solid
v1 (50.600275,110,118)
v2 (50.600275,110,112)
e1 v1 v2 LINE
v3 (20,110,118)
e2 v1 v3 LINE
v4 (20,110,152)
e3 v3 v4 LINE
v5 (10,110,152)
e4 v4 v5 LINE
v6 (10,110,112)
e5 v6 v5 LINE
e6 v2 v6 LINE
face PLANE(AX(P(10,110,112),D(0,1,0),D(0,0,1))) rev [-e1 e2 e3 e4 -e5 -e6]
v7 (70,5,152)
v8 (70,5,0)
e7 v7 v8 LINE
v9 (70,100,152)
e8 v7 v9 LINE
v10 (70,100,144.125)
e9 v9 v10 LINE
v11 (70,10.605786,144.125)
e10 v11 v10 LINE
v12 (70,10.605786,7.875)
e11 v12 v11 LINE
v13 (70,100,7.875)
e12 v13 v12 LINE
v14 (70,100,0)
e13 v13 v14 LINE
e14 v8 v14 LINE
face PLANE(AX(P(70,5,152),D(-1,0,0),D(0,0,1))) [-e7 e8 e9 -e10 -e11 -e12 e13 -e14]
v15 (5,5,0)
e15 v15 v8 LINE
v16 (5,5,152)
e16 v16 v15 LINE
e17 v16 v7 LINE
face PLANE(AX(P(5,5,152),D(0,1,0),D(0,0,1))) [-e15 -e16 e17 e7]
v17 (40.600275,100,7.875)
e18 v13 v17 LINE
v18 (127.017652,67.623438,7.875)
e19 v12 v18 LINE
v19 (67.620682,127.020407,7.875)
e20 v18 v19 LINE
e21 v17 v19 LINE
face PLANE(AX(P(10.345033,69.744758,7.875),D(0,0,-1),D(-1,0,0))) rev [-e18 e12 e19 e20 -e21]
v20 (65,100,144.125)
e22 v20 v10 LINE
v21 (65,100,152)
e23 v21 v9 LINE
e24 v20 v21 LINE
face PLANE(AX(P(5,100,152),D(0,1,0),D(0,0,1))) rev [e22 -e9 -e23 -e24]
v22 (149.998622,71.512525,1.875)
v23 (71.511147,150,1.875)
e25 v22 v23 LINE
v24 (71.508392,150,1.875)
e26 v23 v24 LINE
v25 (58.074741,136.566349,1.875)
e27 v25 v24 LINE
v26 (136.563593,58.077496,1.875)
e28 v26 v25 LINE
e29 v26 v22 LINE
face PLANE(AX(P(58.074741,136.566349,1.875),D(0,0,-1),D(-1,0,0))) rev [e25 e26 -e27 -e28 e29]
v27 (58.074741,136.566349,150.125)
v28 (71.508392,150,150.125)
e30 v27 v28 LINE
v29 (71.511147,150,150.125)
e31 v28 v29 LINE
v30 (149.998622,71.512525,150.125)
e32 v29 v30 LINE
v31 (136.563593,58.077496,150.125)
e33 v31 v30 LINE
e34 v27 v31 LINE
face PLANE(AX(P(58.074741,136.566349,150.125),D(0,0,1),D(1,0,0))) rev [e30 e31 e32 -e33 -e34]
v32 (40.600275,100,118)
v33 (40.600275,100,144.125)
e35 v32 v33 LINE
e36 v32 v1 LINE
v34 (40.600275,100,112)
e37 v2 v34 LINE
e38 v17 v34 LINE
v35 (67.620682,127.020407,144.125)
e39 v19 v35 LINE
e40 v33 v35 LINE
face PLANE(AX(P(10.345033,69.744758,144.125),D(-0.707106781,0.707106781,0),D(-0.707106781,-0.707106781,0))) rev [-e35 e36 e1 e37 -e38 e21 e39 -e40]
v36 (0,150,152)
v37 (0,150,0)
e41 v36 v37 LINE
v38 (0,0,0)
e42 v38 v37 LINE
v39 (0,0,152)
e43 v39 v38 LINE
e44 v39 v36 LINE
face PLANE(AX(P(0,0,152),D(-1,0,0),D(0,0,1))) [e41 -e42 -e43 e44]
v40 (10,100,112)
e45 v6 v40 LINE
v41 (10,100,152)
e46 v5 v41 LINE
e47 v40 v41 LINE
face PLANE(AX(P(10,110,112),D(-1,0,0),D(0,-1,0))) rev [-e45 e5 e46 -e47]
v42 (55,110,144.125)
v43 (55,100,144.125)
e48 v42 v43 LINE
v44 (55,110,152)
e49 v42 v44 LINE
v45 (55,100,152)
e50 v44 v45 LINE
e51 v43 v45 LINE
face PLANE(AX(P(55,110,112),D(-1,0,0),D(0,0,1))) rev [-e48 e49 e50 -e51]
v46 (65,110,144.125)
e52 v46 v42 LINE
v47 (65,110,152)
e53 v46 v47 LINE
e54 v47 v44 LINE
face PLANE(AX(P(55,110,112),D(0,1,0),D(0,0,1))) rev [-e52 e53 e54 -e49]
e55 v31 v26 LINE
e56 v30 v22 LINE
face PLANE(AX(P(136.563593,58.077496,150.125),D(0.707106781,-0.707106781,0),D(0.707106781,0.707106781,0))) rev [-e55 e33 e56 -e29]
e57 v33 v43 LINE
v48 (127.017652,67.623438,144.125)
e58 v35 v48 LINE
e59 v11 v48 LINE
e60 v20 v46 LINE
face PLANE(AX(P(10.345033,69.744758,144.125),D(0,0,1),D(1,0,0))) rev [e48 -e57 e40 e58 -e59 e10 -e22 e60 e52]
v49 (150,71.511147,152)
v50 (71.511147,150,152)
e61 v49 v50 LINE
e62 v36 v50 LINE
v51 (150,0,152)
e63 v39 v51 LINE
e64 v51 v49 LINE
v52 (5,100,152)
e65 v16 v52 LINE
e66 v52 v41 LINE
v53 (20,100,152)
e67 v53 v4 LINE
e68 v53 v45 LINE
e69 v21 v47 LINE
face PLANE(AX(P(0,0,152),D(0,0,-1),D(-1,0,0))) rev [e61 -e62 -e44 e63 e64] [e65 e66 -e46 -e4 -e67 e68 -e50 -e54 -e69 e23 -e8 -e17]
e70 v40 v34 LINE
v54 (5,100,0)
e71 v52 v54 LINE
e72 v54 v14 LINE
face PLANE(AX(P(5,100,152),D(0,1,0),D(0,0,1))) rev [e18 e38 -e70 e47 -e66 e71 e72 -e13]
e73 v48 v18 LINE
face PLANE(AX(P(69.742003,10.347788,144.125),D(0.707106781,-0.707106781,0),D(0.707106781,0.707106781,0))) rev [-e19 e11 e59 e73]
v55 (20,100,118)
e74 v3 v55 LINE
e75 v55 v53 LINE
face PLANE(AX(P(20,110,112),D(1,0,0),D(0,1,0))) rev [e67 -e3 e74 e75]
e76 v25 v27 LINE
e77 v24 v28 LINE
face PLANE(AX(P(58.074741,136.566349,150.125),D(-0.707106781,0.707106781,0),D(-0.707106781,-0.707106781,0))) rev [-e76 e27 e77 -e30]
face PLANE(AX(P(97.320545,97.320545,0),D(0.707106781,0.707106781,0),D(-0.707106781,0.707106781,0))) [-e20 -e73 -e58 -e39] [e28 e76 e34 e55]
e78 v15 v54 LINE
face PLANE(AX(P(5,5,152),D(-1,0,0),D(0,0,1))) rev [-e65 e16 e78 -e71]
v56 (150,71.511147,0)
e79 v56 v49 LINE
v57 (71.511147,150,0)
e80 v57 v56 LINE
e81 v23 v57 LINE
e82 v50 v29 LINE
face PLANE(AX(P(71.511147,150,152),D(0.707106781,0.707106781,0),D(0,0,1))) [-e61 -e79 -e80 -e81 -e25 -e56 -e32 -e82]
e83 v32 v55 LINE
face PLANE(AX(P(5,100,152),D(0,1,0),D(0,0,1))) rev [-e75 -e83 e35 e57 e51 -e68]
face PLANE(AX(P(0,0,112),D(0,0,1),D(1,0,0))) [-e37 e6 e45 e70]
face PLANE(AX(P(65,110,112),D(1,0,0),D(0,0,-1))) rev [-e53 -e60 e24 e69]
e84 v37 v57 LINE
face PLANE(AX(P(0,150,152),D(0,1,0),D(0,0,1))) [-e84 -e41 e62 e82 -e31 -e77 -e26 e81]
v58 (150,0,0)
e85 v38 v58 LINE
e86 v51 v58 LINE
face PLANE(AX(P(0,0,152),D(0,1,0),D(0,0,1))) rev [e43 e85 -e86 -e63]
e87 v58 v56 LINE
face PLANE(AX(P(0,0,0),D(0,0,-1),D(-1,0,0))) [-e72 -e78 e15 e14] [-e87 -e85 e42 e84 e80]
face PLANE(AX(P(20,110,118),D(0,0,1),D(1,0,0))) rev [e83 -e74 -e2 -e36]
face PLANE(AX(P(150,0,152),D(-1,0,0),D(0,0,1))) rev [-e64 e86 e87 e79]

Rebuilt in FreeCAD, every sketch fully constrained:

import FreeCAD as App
import Part
import Sketcher
Q = App.Units.Quantity


def edges_at(feature, points):
    """Names of the edges that pass closest to the given points."""
    edges = feature.Shape.Edges
    near = lambda p: min(range(len(edges)), key=lambda i: edges[i].distToShape(Part.Vertex(*p))[0])
    return sorted({f"Edge{near(p) + 1}" for p in points})


def add_polygon(sketch, points):
    """Adds a closed chain of lines whose ends are joined by coincident constraints."""
    first, n = sketch.GeometryCount, len(points)
    for a, b in zip(points, points[1:] + points[:1]):
        sketch.addGeometry(Part.LineSegment(App.Vector(*a, 0), App.Vector(*b, 0)), False)
    for i in range(n):
        sketch.addConstraint(Sketcher.Constraint("Coincident", first + i, 2, first + (i + 1) % n, 1))

doc = App.newDocument("Part")
body = doc.addObject("PartDesign::Body", "Body")

# Sketch on XY plane
sketch1 = body.newObject("Sketcher::SketchObject", "Sketch")
sketch1.AttachmentSupport = (doc.getObject("XY_Plane"), [""])
sketch1.MapMode = "FlatFace"
add_polygon(sketch1, [(0, 150), (0, 0), (150, 0), (150, 150)])  # lines 0-3
add_polygon(sketch1, [(70, 5), (5, 5), (5, 100), (70, 100)])  # lines 4-7
sketch1.addConstraint(Sketcher.Constraint("Vertical", 0))
sketch1.addConstraint(Sketcher.Constraint("Horizontal", 1))
sketch1.addConstraint(Sketcher.Constraint("Vertical", 2))
sketch1.addConstraint(Sketcher.Constraint("Horizontal", 3))
sketch1.addConstraint(Sketcher.Constraint("Horizontal", 4))
sketch1.addConstraint(Sketcher.Constraint("Vertical", 5))
sketch1.addConstraint(Sketcher.Constraint("Horizontal", 6))
sketch1.addConstraint(Sketcher.Constraint("Vertical", 7))
sketch1.addConstraint(Sketcher.Constraint("Coincident", 0, 2, -1, 1))
sketch1.addConstraint(Sketcher.Constraint("Equal", 3, 0))
sketch1.addConstraint(Sketcher.Constraint("DistanceX", 1, 1, 1, 2, Q("150 mm")))
sketch1.addConstraint(Sketcher.Constraint("DistanceX", 4, 2, 4, 1, Q("65 mm")))
sketch1.addConstraint(Sketcher.Constraint("DistanceY", 5, 1, 5, 2, Q("95 mm")))
sketch1.addConstraint(Sketcher.Constraint("DistanceX", -1, 1, 4, 2, Q("5 mm")))
sketch1.addConstraint(Sketcher.Constraint("DistanceY", -1, 1, 4, 2, Q("5 mm")))
pad1 = body.newObject("PartDesign::Pad", "Pad")
pad1.Profile = sketch1
pad1.Length = 152
doc.recompute()

chamfer = body.newObject("PartDesign::Chamfer", "Chamfer")
chamfer.Base = (pad1, edges_at(pad1, [(150, 150, 76)]))
chamfer.Size = 78.488853

# Sketch on an angled plane
sketch2 = body.newObject("Sketcher::SketchObject", "Sketch001")
sketch2.Placement = App.Placement(App.Vector(110.755574, 110.755574, 0), App.Rotation(App.Vector(0, 0, -1), App.Vector(-0.707106781, 0.707106781, 0), App.Vector(0.707106781, 0.707106781, 0), "ZXY"))
add_polygon(sketch2, [(-150, 56), (-150, -55), (-2, -55), (-2, 56)])  # lines 0-3
sketch2.addConstraint(Sketcher.Constraint("Vertical", 0))
sketch2.addConstraint(Sketcher.Constraint("Horizontal", 1))
sketch2.addConstraint(Sketcher.Constraint("Vertical", 2))
sketch2.addConstraint(Sketcher.Constraint("Horizontal", 3))
sketch2.addConstraint(Sketcher.Constraint("DistanceY", 0, 2, 0, 1, Q("111 mm")))
sketch2.addConstraint(Sketcher.Constraint("DistanceX", 1, 1, 1, 2, Q("148.25 mm")))
sketch2.addConstraint(Sketcher.Constraint("DistanceX", 0, 2, -1, 1, Q("150.125 mm")))
sketch2.addConstraint(Sketcher.Constraint("DistanceY", 0, 2, -1, 1, Q("55.498052 mm")))
pocket1 = body.newObject("PartDesign::Pocket", "Pocket")
pocket1.Profile = sketch2
pocket1.Length = 19

# Sketch on an angled plane
sketch3 = body.newObject("Sketcher::SketchObject", "Sketch002")
sketch3.Placement = App.Placement(App.Vector(97.320545, 97.320545, 0), App.Rotation(App.Vector(0, 0, -1), App.Vector(-0.707106781, 0.707106781, 0), App.Vector(0.707106781, 0.707106781, 0), "ZXY"))
add_polygon(sketch3, [(-144, 42), (-144, -42), (-8, -42), (-8, 42)])  # lines 0-3
sketch3.addConstraint(Sketcher.Constraint("Vertical", 0))
sketch3.addConstraint(Sketcher.Constraint("Horizontal", 1))
sketch3.addConstraint(Sketcher.Constraint("Vertical", 2))
sketch3.addConstraint(Sketcher.Constraint("Horizontal", 3))
sketch3.addConstraint(Sketcher.Constraint("DistanceY", 0, 2, 0, 1, Q("84 mm")))
sketch3.addConstraint(Sketcher.Constraint("DistanceX", 1, 1, 1, 2, Q("136.25 mm")))
sketch3.addConstraint(Sketcher.Constraint("DistanceX", 0, 2, -1, 1, Q("144.125 mm")))
sketch3.addConstraint(Sketcher.Constraint("DistanceY", 0, 2, -1, 1, Q("41.998052 mm")))
pocket2 = body.newObject("PartDesign::Pocket", "Pocket001")
pocket2.Profile = sketch3
pocket2.Length = 81

# Sketch on XY plane
sketch4 = body.newObject("Sketcher::SketchObject", "Sketch003")
sketch4.AttachmentSupport = (doc.getObject("XY_Plane"), [""])
sketch4.MapMode = "FlatFace"
sketch4.AttachmentOffset = App.Placement(App.Vector(0, 0, 152), App.Rotation())
add_polygon(sketch4, [(10, 110), (10, 100), (20, 100), (20, 110)])  # lines 0-3
sketch4.addConstraint(Sketcher.Constraint("Vertical", 0))
sketch4.addConstraint(Sketcher.Constraint("Horizontal", 1))
sketch4.addConstraint(Sketcher.Constraint("Vertical", 2))
sketch4.addConstraint(Sketcher.Constraint("Horizontal", 3))
sketch4.addConstraint(Sketcher.Constraint("Equal", 3, 0))
sketch4.addConstraint(Sketcher.Constraint("DistanceX", 1, 1, 1, 2, Q("10 mm")))
sketch4.addConstraint(Sketcher.Constraint("DistanceX", -1, 1, 0, 2, Q("10 mm")))
sketch4.addConstraint(Sketcher.Constraint("DistanceY", -1, 1, 0, 2, Q("100 mm")))
pocket3 = body.newObject("PartDesign::Pocket", "Pocket002")
pocket3.Profile = sketch4
pocket3.Length = 40

# Sketch on XY plane
sketch5 = body.newObject("Sketcher::SketchObject", "Sketch004")
sketch5.AttachmentSupport = (doc.getObject("XY_Plane"), [""])
sketch5.MapMode = "FlatFace"
sketch5.AttachmentOffset = App.Placement(App.Vector(0, 0, 152), App.Rotation())
add_polygon(sketch5, [(55, 110), (55, 100), (65, 100), (65, 110)])  # lines 0-3
sketch5.addConstraint(Sketcher.Constraint("Vertical", 0))
sketch5.addConstraint(Sketcher.Constraint("Horizontal", 1))
sketch5.addConstraint(Sketcher.Constraint("Vertical", 2))
sketch5.addConstraint(Sketcher.Constraint("Horizontal", 3))
sketch5.addConstraint(Sketcher.Constraint("Equal", 3, 0))
sketch5.addConstraint(Sketcher.Constraint("DistanceX", 1, 1, 1, 2, Q("10 mm")))
sketch5.addConstraint(Sketcher.Constraint("DistanceX", -1, 1, 0, 2, Q("55 mm")))
sketch5.addConstraint(Sketcher.Constraint("DistanceY", -1, 1, 0, 2, Q("100 mm")))
pocket4 = body.newObject("PartDesign::Pocket", "Pocket003")
pocket4.Profile = sketch5
pocket4.Length = 40

# Sketch on XZ plane
sketch6 = body.newObject("Sketcher::SketchObject", "Sketch005")
sketch6.AttachmentSupport = (doc.getObject("XZ_Plane"), [""])
sketch6.MapMode = "FlatFace"
sketch6.AttachmentOffset = App.Placement(App.Vector(0, 0, -100), App.Rotation())
add_polygon(sketch6, [(20, 118), (20, 112), (60, 112), (60, 118)])  # lines 0-3
sketch6.addConstraint(Sketcher.Constraint("Vertical", 0))
sketch6.addConstraint(Sketcher.Constraint("Horizontal", 1))
sketch6.addConstraint(Sketcher.Constraint("Vertical", 2))
sketch6.addConstraint(Sketcher.Constraint("Horizontal", 3))
sketch6.addConstraint(Sketcher.Constraint("DistanceX", 1, 1, 1, 2, Q("40 mm")))
sketch6.addConstraint(Sketcher.Constraint("DistanceY", 0, 2, 0, 1, Q("6 mm")))
sketch6.addConstraint(Sketcher.Constraint("DistanceX", -1, 1, 0, 2, Q("20 mm")))
sketch6.addConstraint(Sketcher.Constraint("DistanceY", -1, 1, 0, 2, Q("112 mm")))
pocket5 = body.newObject("PartDesign::Pocket", "Pocket004")
pocket5.Profile = sketch6
pocket5.Length = 10

doc.recompute()
